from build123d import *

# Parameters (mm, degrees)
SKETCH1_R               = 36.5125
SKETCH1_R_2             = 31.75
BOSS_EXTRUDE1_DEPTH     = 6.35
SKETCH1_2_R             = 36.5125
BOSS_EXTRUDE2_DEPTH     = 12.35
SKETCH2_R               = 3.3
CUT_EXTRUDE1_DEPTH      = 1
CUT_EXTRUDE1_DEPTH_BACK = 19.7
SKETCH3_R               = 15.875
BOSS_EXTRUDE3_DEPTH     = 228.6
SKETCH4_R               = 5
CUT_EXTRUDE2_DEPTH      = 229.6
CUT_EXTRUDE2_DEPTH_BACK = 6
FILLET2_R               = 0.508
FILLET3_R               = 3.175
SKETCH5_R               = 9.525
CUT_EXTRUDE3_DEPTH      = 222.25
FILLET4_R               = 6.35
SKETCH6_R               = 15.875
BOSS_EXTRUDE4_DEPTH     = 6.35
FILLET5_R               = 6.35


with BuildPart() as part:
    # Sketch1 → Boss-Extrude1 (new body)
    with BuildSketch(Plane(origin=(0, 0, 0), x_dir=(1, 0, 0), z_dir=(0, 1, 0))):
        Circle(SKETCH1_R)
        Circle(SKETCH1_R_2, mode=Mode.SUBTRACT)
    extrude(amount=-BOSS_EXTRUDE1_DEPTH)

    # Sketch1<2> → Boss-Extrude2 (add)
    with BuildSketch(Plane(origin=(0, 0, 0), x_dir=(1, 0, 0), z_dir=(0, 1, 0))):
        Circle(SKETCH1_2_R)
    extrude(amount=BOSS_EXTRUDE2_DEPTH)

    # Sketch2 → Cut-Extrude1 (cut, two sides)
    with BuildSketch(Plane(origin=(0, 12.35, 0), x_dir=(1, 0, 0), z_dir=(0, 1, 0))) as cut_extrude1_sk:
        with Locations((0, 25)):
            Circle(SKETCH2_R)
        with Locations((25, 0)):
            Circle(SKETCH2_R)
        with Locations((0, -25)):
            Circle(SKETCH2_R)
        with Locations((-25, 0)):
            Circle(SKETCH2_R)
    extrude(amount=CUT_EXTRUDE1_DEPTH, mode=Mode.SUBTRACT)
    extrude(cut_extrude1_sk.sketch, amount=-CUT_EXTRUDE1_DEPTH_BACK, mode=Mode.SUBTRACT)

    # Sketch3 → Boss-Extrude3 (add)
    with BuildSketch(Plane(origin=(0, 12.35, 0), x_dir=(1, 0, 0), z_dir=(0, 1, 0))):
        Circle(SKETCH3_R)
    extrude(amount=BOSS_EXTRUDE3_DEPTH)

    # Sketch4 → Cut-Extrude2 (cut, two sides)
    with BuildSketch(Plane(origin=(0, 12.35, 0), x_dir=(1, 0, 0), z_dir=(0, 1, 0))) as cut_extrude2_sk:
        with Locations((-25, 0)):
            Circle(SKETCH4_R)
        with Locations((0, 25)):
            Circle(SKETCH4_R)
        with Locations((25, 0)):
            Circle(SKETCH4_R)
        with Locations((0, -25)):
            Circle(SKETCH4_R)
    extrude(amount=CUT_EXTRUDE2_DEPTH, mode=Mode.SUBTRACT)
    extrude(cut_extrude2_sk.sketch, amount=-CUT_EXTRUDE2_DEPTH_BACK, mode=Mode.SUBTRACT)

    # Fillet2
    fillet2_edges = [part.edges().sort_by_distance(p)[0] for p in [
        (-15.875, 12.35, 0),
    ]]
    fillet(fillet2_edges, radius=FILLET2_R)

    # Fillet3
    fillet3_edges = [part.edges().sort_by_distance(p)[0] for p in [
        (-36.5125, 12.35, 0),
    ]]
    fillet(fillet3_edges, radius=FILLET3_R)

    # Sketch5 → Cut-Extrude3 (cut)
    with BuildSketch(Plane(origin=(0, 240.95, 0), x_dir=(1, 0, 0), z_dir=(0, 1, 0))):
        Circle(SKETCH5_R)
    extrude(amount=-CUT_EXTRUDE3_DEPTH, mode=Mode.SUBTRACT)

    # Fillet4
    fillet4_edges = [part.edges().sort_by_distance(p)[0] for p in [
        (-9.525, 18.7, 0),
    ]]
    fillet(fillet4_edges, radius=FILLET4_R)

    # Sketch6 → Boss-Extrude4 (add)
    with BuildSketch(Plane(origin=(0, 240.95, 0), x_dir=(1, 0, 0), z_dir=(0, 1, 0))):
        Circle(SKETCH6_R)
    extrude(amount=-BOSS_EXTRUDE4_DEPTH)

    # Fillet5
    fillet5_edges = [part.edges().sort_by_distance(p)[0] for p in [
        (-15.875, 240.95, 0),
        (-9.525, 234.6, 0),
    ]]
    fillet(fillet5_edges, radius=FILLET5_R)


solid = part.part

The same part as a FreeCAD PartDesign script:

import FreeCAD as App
import Part
import Sketcher

V = App.Vector
Q = App.Units.Quantity


def edges_at(feature, points):
    """Names of the edges that pass closest to the given points."""
    edges = feature.Shape.Edges
    near = lambda p: min(range(len(edges)), key=lambda i: edges[i].distToShape(Part.Vertex(*p))[0])
    return sorted({f"Edge{near(p) + 1}" for p in points})

doc = App.newDocument("Part")
body = doc.addObject("PartDesign::Body", "Body")

# Sketch on XZ plane
sketch1 = body.newObject("Sketcher::SketchObject", "Sketch")
sketch1.AttachmentSupport = (doc.getObject("XZ_Plane"), [""])
sketch1.MapMode = "FlatFace"
sketch1.addGeometry([
    Part.Circle(V(0, 0, 0), V(0, 0, 1), 36.5125),
    Part.Circle(V(0, 0, 0), V(0, 0, 1), 31.75),
], False)
sketch1.addConstraint([
    Sketcher.Constraint("Coincident", 0, 3, -1, 1),
    Sketcher.Constraint("Coincident", 1, 3, -1, 1),
    Sketcher.Constraint("Diameter", 1, Q("2.5 in")),
    Sketcher.Constraint("Diameter", 0, Q("2.875 in")),
])
pad1 = body.newObject("PartDesign::Pad", "Pad")
pad1.Profile = sketch1
pad1.Length = Q("0.25 in")

# Sketch on XZ plane
sketch2 = body.newObject("Sketcher::SketchObject", "Sketch001")
sketch2.AttachmentSupport = (doc.getObject("XZ_Plane"), [""])
sketch2.MapMode = "FlatFace"
sketch2.addGeometry(Part.Circle(V(0, 0, 0), V(0, 0, 1), 36.5125), False)
sketch2.addConstraint([
    Sketcher.Constraint("Coincident", 0, 3, -1, 1),
    Sketcher.Constraint("Diameter", 0, Q("2.875 in")),
])
pad2 = body.newObject("PartDesign::Pad", "Pad001")
pad2.Profile = sketch2
pad2.Length = 12.35
pad2.Reversed = True

# Sketch on XZ plane
sketch3 = body.newObject("Sketcher::SketchObject", "Sketch002")
sketch3.AttachmentSupport = (doc.getObject("XZ_Plane"), [""])
sketch3.MapMode = "FlatFace"
sketch3.AttachmentOffset = App.Placement(V(0, 0, -12.35), App.Rotation())
sketch3.addGeometry([
    Part.Circle(V(0, -25, 0), V(0, 0, 1), 3.3),
    Part.Circle(V(25, 0, 0), V(0, 0, 1), 3.3),
    Part.Circle(V(0, 25, 0), V(0, 0, 1), 3.3),
    Part.Circle(V(-25, 0, 0), V(0, 0, 1), 3.3),
], False)
sketch3.addConstraint([
    Sketcher.Constraint("Equal", 0, 1),
    Sketcher.Constraint("Equal", 1, 2),
    Sketcher.Constraint("Equal", 2, 3),
    Sketcher.Constraint("Symmetric", 0, 3, 2, 3, -1, 1),
    Sketcher.Constraint("Symmetric", 1, 3, 3, 3, -1, 1),
    Sketcher.Constraint("PointOnObject", 0, 3, -2),
    Sketcher.Constraint("PointOnObject", 1, 3, -1),
    Sketcher.Constraint("Diameter", 0, Q("6.6 mm")),
    Sketcher.Constraint("DistanceY", 0, 3, -1, 1, Q("25 mm")),
    Sketcher.Constraint("DistanceX", -1, 1, 1, 3, Q("25 mm")),
])
pocket1 = body.newObject("PartDesign::Pocket", "Pocket")
pocket1.Profile = sketch3
pocket1.Type = "ThroughAll"
pocket1.Midplane = True

# Sketch on XZ plane
sketch4 = body.newObject("Sketcher::SketchObject", "Sketch003")
sketch4.AttachmentSupport = (doc.getObject("XZ_Plane"), [""])
sketch4.MapMode = "FlatFace"
sketch4.AttachmentOffset = App.Placement(V(0, 0, -12.35), App.Rotation())
sketch4.addGeometry(Part.Circle(V(0, 0, 0), V(0, 0, 1), 15.875), False)
sketch4.addConstraint([
    Sketcher.Constraint("Coincident", 0, 3, -1, 1),
    Sketcher.Constraint("Diameter", 0, Q("1.25 in")),
])
pad3 = body.newObject("PartDesign::Pad", "Pad002")
pad3.Profile = sketch4
pad3.Length = Q("9 in")
pad3.Reversed = True

# Sketch on XZ plane
sketch5 = body.newObject("Sketcher::SketchObject", "Sketch004")
sketch5.AttachmentSupport = (doc.getObject("XZ_Plane"), [""])
sketch5.MapMode = "FlatFace"
sketch5.AttachmentOffset = App.Placement(V(0, 0, -12.35), App.Rotation())
sketch5.addGeometry([
    Part.Circle(V(-25, 0, 0), V(0, 0, 1), 5),
    Part.Circle(V(0, -25, 0), V(0, 0, 1), 5),
    Part.Circle(V(25, 0, 0), V(0, 0, 1), 5),
    Part.Circle(V(0, 25, 0), V(0, 0, 1), 5),
], False)
sketch5.addConstraint([
    Sketcher.Constraint("Equal", 0, 1),
    Sketcher.Constraint("Equal", 1, 2),
    Sketcher.Constraint("Equal", 2, 3),
    Sketcher.Constraint("Symmetric", 0, 3, 2, 3, -1, 1),
    Sketcher.Constraint("Symmetric", 1, 3, 3, 3, -1, 1),
    Sketcher.Constraint("PointOnObject", 0, 3, -1),
    Sketcher.Constraint("PointOnObject", 1, 3, -2),
    Sketcher.Constraint("Diameter", 0, Q("10 mm")),
    Sketcher.Constraint("DistanceX", 0, 3, -1, 1, Q("25 mm")),
    Sketcher.Constraint("DistanceY", 1, 3, -1, 1, Q("25 mm")),
])
pocket2 = body.newObject("PartDesign::Pocket", "Pocket001")
pocket2.Profile = sketch5
pocket2.Type = "TwoLengths"
pocket2.Length = 229.6
pocket2.Length2 = 6
doc.recompute()

fillet = body.newObject("PartDesign::Fillet", "Fillet")
fillet.Base = (pocket2, edges_at(pocket2, [(-15.875, 12.35, 0)]))
fillet.Radius = Q("0.02 in")
doc.recompute()

fillet2 = body.newObject("PartDesign::Fillet", "Fillet001")
fillet2.Base = (fillet, edges_at(fillet, [(-36.513, 12.35, 0)]))
fillet2.Radius = Q("0.125 in")

# Sketch on XZ plane
sketch6 = body.newObject("Sketcher::SketchObject", "Sketch005")
sketch6.AttachmentSupport = (doc.getObject("XZ_Plane"), [""])
sketch6.MapMode = "FlatFace"
sketch6.AttachmentOffset = App.Placement(V(0, 0, -240.95), App.Rotation())
sketch6.addGeometry(Part.Circle(V(0, 0, 0), V(0, 0, 1), 9.525), False)
sketch6.addConstraint([
    Sketcher.Constraint("Coincident", 0, 3, -1, 1),
    Sketcher.Constraint("Diameter", 0, Q("0.75 in")),
])
pocket3 = body.newObject("PartDesign::Pocket", "Pocket002")
pocket3.Profile = sketch6
pocket3.Length = Q("8.75 in")
pocket3.Reversed = True
doc.recompute()

fillet3 = body.newObject("PartDesign::Fillet", "Fillet002")
fillet3.Base = (pocket3, edges_at(pocket3, [(-9.525, 18.7, 0)]))
fillet3.Radius = Q("0.25 in")

# Sketch on XZ plane
sketch7 = body.newObject("Sketcher::SketchObject", "Sketch006")
sketch7.AttachmentSupport = (doc.getObject("XZ_Plane"), [""])
sketch7.MapMode = "FlatFace"
sketch7.AttachmentOffset = App.Placement(V(0, 0, -240.95), App.Rotation())
sketch7.addGeometry(Part.Circle(V(0, 0, 0), V(0, 0, 1), 15.875), False)
sketch7.addConstraint([
    Sketcher.Constraint("Coincident", 0, 3, -1, 1),
    Sketcher.Constraint("Diameter", 0, Q("1.25 in")),
])
pad4 = body.newObject("PartDesign::Pad", "Pad003")
pad4.Profile = sketch7
pad4.Length = Q("0.25 in")
doc.recompute()

fillet4 = body.newObject("PartDesign::Fillet", "Fillet003")
fillet4.Base = (pad4, edges_at(pad4, [(-15.875, 240.95, 0), (-9.525, 234.6, 0)]))
fillet4.Radius = Q("0.25 in")

doc.recompute()
